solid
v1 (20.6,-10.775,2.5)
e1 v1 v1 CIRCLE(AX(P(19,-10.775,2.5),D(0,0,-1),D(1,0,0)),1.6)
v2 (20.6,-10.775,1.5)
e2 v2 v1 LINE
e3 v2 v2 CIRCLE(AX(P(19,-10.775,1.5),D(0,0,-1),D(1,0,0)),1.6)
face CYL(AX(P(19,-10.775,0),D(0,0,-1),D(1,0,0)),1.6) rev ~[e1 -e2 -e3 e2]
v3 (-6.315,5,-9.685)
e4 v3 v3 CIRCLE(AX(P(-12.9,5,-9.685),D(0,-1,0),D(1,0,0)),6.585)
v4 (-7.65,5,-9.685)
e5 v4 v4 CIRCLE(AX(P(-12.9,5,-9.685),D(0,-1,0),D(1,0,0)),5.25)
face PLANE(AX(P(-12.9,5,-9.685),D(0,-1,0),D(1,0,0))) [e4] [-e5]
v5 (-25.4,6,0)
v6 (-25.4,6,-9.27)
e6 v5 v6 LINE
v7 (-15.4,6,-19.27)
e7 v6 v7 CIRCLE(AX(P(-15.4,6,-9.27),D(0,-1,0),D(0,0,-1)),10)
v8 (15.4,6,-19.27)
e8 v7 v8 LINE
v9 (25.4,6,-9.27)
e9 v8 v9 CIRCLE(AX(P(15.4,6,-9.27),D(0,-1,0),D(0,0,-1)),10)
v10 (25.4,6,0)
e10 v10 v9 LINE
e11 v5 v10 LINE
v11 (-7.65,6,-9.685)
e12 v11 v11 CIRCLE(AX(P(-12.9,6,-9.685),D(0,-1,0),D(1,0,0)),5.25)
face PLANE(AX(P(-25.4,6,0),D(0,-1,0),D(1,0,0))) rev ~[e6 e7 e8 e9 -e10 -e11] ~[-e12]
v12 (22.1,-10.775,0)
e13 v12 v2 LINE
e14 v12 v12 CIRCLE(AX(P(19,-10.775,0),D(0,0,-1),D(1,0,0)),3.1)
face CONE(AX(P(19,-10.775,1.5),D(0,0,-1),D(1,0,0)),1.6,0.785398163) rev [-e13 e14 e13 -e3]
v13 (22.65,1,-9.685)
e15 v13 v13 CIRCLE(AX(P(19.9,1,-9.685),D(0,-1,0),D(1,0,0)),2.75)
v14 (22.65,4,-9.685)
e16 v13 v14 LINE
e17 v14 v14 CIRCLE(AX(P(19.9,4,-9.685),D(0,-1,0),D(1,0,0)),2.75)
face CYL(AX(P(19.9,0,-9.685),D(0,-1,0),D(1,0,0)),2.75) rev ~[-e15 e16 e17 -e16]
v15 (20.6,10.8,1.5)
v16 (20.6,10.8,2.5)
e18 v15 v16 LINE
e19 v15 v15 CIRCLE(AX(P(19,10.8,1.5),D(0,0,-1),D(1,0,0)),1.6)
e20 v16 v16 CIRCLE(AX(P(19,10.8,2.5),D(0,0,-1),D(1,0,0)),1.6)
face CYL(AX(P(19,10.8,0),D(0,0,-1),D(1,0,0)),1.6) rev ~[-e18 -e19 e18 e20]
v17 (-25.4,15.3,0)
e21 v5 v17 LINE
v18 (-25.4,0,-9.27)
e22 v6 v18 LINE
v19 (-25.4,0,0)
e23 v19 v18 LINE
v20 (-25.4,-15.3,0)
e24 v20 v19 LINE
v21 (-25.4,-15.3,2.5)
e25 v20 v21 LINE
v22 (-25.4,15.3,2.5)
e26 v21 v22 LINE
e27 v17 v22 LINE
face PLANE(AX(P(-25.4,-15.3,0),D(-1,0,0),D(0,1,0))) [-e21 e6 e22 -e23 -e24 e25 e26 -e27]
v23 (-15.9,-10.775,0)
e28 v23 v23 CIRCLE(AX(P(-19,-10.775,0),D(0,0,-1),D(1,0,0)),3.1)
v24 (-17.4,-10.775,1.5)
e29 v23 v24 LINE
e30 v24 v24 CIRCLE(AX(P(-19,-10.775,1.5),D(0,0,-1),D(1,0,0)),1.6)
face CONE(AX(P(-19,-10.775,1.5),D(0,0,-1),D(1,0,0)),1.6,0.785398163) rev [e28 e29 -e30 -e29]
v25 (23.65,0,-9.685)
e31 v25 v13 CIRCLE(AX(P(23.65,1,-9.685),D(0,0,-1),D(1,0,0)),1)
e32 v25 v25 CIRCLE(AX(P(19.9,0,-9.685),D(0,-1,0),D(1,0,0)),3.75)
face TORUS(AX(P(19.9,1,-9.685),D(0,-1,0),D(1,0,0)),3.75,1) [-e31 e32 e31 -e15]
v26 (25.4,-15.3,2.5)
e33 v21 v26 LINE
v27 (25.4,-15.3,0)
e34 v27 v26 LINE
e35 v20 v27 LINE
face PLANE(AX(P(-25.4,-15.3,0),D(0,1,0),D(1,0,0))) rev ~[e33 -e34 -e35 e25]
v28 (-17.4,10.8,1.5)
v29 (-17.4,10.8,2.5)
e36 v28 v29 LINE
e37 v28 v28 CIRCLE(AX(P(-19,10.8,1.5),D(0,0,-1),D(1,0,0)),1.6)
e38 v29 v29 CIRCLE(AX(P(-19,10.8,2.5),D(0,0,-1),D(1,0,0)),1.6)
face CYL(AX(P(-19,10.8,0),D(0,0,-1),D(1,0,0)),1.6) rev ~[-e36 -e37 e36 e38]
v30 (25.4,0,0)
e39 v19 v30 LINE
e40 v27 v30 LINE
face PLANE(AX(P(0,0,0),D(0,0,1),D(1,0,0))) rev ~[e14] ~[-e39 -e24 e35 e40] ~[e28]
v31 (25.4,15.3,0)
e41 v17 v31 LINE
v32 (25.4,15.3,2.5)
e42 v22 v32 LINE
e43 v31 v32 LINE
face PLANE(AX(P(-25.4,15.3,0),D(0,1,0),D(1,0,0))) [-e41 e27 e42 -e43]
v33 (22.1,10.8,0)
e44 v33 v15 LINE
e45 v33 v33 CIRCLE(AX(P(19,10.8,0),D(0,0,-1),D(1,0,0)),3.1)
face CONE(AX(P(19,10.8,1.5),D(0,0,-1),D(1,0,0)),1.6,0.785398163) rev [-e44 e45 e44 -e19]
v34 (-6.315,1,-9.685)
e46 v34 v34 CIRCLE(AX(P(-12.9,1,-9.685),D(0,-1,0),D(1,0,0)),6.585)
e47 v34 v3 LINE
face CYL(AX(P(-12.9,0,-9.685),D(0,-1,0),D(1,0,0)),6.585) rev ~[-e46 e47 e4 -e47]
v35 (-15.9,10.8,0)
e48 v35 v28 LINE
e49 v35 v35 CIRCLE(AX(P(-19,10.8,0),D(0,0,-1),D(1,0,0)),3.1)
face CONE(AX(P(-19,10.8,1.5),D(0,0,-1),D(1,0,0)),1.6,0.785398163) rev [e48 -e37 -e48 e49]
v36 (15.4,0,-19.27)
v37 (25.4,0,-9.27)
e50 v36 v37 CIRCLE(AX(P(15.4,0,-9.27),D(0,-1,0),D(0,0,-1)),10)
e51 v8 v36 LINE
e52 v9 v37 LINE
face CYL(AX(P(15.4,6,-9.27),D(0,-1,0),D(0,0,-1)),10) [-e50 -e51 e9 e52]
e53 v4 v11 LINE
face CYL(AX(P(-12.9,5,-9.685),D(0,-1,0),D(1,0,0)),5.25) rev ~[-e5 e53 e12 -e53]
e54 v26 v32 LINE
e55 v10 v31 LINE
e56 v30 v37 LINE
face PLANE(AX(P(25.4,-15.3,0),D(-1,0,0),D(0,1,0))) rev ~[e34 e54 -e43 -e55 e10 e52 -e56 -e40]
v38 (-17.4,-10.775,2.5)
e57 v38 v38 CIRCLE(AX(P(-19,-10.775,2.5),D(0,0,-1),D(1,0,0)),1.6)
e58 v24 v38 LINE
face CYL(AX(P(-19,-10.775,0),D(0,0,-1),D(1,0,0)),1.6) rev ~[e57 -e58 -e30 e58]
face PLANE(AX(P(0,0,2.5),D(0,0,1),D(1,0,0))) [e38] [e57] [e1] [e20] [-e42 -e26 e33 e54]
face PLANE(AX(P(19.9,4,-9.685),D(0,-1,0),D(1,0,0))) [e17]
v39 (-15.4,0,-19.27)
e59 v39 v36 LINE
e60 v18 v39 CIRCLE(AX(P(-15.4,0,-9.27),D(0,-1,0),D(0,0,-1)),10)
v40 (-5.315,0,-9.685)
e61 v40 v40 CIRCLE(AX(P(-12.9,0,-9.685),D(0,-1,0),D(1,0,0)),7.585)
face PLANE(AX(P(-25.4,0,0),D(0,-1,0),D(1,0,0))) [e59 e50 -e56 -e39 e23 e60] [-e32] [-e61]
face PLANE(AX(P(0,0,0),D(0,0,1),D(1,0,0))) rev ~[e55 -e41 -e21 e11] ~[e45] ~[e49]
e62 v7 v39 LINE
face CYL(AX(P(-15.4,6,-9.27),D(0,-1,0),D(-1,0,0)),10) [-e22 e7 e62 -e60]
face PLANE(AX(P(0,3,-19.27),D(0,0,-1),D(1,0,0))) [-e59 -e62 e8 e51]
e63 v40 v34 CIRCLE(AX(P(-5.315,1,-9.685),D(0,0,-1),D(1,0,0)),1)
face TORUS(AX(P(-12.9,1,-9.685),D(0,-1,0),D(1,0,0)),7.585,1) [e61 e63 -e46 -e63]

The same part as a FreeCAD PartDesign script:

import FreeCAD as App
import Part
import Sketcher


def edges_at(feature, points):
    """Names of the edges that pass closest to the given points."""
    edges = feature.Shape.Edges
    near = lambda p: min(range(len(edges)), key=lambda i: edges[i].distToShape(Part.Vertex(*p))[0])
    return sorted({f"Edge{near(p) + 1}" for p in points})

doc = App.newDocument("Part")
body = doc.addObject("PartDesign::Body", "Body")

# Sketch on XY plane
sketch1 = body.newObject("Sketcher::SketchObject", "Sketch")
sketch1.AttachmentSupport = (doc.getObject("XY_Plane"), [""])
sketch1.MapMode = "FlatFace"
sketch1.addGeometry([
    Part.LineSegment(App.Vector(-25.4, 15.3, 0), App.Vector(-25.4, -15.3, 0)),
    Part.LineSegment(App.Vector(-25.4, -15.3, 0), App.Vector(25.4, -15.3, 0)),
    Part.LineSegment(App.Vector(25.4, -15.3, 0), App.Vector(25.4, 15.3, 0)),
    Part.LineSegment(App.Vector(25.4, 15.3, 0), App.Vector(-25.4, 15.3, 0)),
], False)
sketch1.addConstraint([
    Sketcher.Constraint("Coincident", 0, 2, 1, 1),
    Sketcher.Constraint("Coincident", 1, 2, 2, 1),
    Sketcher.Constraint("Coincident", 2, 2, 3, 1),
    Sketcher.Constraint("Coincident", 3, 2, 0, 1),
    Sketcher.Constraint("Vertical", 0),
    Sketcher.Constraint("Horizontal", 1),
    Sketcher.Constraint("Vertical", 2),
    Sketcher.Constraint("Horizontal", 3),
    Sketcher.Constraint("Symmetric", 0, 2, 2, 2, -1, 1),
    Sketcher.Constraint("DistanceX", 1, 1, 1, 2, 50.8),
    Sketcher.Constraint("DistanceY", 0, 2, 0, 1, 30.6),
])
pad1 = body.newObject("PartDesign::Pad", "Pad")
pad1.Profile = sketch1
pad1.Length = 2.5

# Sketch on XY plane
sketch2 = body.newObject("Sketcher::SketchObject", "Sketch001")
sketch2.AttachmentSupport = (doc.getObject("XY_Plane"), [""])
sketch2.MapMode = "FlatFace"
sketch2.addGeometry([
    Part.Circle(App.Vector(-19, -10.775, 0), App.Vector(0, 0, 1), 1.6),
    Part.Circle(App.Vector(19, -10.775, 0), App.Vector(0, 0, 1), 1.6),
    Part.Circle(App.Vector(19, 10.8, 0), App.Vector(0, 0, 1), 1.6),
    Part.Circle(App.Vector(-19, 10.8, 0), App.Vector(0, 0, 1), 1.6),
], False)
sketch2.addConstraint([
    Sketcher.Constraint("Equal", 0, 1),
    Sketcher.Constraint("Equal", 1, 2),
    Sketcher.Constraint("Equal", 2, 3),
    Sketcher.Constraint("Symmetric", 0, 3, 1, 3, -2),
    Sketcher.Constraint("Symmetric", 2, 3, 3, 3, -2),
    Sketcher.Constraint("Vertical", 1, 3, 2, 3),
    Sketcher.Constraint("Diameter", 0, 3.2),
    Sketcher.Constraint("DistanceX", 0, 3, -1, 1, 19.0),
    Sketcher.Constraint("DistanceY", -1, 1, 2, 3, 10.8),
    Sketcher.Constraint("DistanceY", 0, 3, -1, 1, 10.775),
])
pocket1 = body.newObject("PartDesign::Pocket", "Pocket")
pocket1.Profile = sketch2
pocket1.Type = "ThroughAll"
pocket1.Reversed = True

# Sketch on XY plane
sketch3 = body.newObject("Sketcher::SketchObject", "Sketch002")
sketch3.AttachmentSupport = (doc.getObject("XY_Plane"), [""])
sketch3.MapMode = "FlatFace"
sketch3.addGeometry([
    Part.LineSegment(App.Vector(-25.4, 0, 0), App.Vector(-25.4, 6, 0)),
    Part.LineSegment(App.Vector(-25.4, 6, 0), App.Vector(25.4, 6, 0)),
    Part.LineSegment(App.Vector(25.4, 6, 0), App.Vector(25.4, 0, 0)),
    Part.LineSegment(App.Vector(25.4, 0, 0), App.Vector(-25.4, 0, 0)),
], False)
sketch3.addConstraint([
    Sketcher.Constraint("Coincident", 0, 2, 1, 1),
    Sketcher.Constraint("Coincident", 1, 2, 2, 1),
    Sketcher.Constraint("Coincident", 2, 2, 3, 1),
    Sketcher.Constraint("Coincident", 3, 2, 0, 1),
    Sketcher.Constraint("Vertical", 0),
    Sketcher.Constraint("Horizontal", 1),
    Sketcher.Constraint("Vertical", 2),
    Sketcher.Constraint("Horizontal", 3),
    Sketcher.Constraint("Symmetric", 2, 2, 3, 2, -1, 1),
    Sketcher.Constraint("DistanceY", 0, 1, 0, 2, 6.0),
    Sketcher.Constraint("DistanceX", 1, 1, 1, 2, 50.8),
])
pad2 = body.newObject("PartDesign::Pad", "Pad001")
pad2.Profile = sketch3
pad2.Length = 19.27
pad2.Reversed = True

# Sketch on XZ plane
sketch4 = body.newObject("Sketcher::SketchObject", "Sketch003")
sketch4.AttachmentSupport = (doc.getObject("XZ_Plane"), [""])
sketch4.MapMode = "FlatFace"
sketch4.addGeometry(Part.Circle(App.Vector(-12.9, -9.685, 0), App.Vector(0, 0, 1), 6.585), False)
sketch4.addConstraint([
    Sketcher.Constraint("Diameter", 0, 13.17),
    Sketcher.Constraint("DistanceX", 0, 3, -1, 1, 12.9),
    Sketcher.Constraint("DistanceY", 0, 3, -1, 1, 9.685),
])
pocket2 = body.newObject("PartDesign::Pocket", "Pocket001")
pocket2.Profile = sketch4
pocket2.Length = 5

# Sketch on XZ plane
sketch5 = body.newObject("Sketcher::SketchObject", "Sketch004")
sketch5.AttachmentSupport = (doc.getObject("XZ_Plane"), [""])
sketch5.MapMode = "FlatFace"
sketch5.addGeometry(Part.Circle(App.Vector(19.9, -9.685, 0), App.Vector(0, 0, 1), 2.75), False)
sketch5.addConstraint([
    Sketcher.Constraint("Diameter", 0, 5.5),
    Sketcher.Constraint("DistanceX", -1, 1, 0, 3, 19.9),
    Sketcher.Constraint("DistanceY", 0, 3, -1, 1, 9.685),
])
pocket3 = body.newObject("PartDesign::Pocket", "Pocket002")
pocket3.Profile = sketch5
pocket3.Length = 4

# Sketch on XZ plane
sketch6 = body.newObject("Sketcher::SketchObject", "Sketch005")
sketch6.AttachmentSupport = (doc.getObject("XZ_Plane"), [""])
sketch6.MapMode = "FlatFace"
sketch6.AttachmentOffset = App.Placement(App.Vector(0, 0, -5), App.Rotation())
sketch6.addGeometry(Part.Circle(App.Vector(-12.9, -9.685, 0), App.Vector(0, 0, 1), 5.25), False)
sketch6.addConstraint([
    Sketcher.Constraint("Diameter", 0, 10.5),
    Sketcher.Constraint("DistanceX", 0, 3, -1, 1, 12.9),
    Sketcher.Constraint("DistanceY", 0, 3, -1, 1, 9.685),
])
pocket4 = body.newObject("PartDesign::Pocket", "Pocket003")
pocket4.Profile = sketch6
pocket4.Type = "ThroughAll"
doc.recompute()

chamfer = body.newObject("PartDesign::Chamfer", "Chamfer")
chamfer.Base = (pocket4, edges_at(pocket4, [
    (-20.6, -10.775, 0),
    (17.4, -10.775, 0),
    (17.4, 10.8, 0),
    (-20.6, 10.8, 0),
]))
chamfer.Size = 1.5
doc.recompute()

fillet = body.newObject("PartDesign::Fillet", "Fillet")
fillet.Base = (chamfer, edges_at(chamfer, [(-19.485, 0, -9.685), (17.15, 0, -9.685)]))
fillet.Radius = 1
doc.recompute()

fillet2 = body.newObject("PartDesign::Fillet", "Fillet001")
fillet2.Base = (fillet, edges_at(fillet, [(-25.4, 3, -19.27), (25.4, 3, -19.27)]))
fillet2.Radius = 10

doc.recompute()
